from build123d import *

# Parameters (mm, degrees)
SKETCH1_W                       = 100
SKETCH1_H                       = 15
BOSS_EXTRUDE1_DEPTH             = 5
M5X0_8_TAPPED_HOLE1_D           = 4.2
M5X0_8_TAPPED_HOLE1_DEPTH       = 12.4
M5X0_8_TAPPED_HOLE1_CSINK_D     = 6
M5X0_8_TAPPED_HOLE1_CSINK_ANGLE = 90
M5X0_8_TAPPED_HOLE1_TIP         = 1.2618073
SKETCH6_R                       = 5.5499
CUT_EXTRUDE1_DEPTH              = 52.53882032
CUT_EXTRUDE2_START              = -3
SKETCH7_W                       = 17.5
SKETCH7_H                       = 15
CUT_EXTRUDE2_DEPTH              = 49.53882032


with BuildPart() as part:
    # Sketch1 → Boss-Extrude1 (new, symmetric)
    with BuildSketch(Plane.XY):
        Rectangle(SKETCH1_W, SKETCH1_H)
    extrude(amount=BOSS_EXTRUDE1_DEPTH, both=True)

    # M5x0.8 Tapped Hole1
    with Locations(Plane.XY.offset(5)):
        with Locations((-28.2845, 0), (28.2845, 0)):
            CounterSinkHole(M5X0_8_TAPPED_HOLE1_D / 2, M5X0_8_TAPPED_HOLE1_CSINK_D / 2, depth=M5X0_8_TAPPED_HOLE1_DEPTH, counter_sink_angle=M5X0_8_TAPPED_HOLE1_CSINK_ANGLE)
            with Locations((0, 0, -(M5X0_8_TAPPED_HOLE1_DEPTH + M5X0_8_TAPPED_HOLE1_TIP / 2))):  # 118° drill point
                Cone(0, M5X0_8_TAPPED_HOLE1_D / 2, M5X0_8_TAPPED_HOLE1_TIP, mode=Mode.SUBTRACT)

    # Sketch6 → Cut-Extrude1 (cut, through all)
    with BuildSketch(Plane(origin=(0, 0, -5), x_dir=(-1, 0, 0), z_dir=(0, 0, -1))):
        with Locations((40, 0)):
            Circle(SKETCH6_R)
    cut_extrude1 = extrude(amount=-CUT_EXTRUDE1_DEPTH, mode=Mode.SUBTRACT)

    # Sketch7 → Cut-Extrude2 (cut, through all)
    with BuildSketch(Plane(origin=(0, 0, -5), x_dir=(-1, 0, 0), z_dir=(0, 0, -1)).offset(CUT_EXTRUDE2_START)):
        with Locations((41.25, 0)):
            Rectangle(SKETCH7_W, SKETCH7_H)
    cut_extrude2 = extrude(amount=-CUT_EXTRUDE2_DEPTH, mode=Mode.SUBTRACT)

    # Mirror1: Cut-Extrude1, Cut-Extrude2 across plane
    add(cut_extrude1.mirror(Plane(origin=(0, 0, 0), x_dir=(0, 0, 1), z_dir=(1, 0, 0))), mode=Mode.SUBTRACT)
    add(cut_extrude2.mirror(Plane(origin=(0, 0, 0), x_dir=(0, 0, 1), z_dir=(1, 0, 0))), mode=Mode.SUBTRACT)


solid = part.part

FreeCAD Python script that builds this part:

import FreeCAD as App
import Part
import Sketcher

V = App.Vector
Q = App.Units.Quantity

doc = App.newDocument("Part")
body = doc.addObject("PartDesign::Body", "Body")

# Sketch on XY plane
sketch1 = doc.addObject("Sketcher::SketchObject", "Sketch")
body.addObject(sketch1)
sketch1.AttachmentSupport = (doc.XY_Plane, [""])
sketch1.MapMode = "FlatFace"
sketch1.addGeometry([
    Part.LineSegment(V(-50, 8, 0), V(-50, -8, 0)),
    Part.LineSegment(V(-50, -8, 0), V(50, -8, 0)),
    Part.LineSegment(V(50, -8, 0), V(50, 8, 0)),
    Part.LineSegment(V(50, 8, 0), V(-50, 8, 0)),
], False)
sketch1.addConstraint([
    Sketcher.Constraint("Coincident", 0, 2, 1, 1),
    Sketcher.Constraint("Coincident", 1, 2, 2, 1),
    Sketcher.Constraint("Coincident", 2, 2, 3, 1),
    Sketcher.Constraint("Coincident", 3, 2, 0, 1),
    Sketcher.Constraint("Vertical", 0),
    Sketcher.Constraint("Horizontal", 1),
    Sketcher.Constraint("Vertical", 2),
    Sketcher.Constraint("Horizontal", 3),
    Sketcher.Constraint("Symmetric", 0, 2, 2, 2, -1, 1),
    Sketcher.Constraint("DistanceX", 1, 1, 1, 2, Q("100 mm")),
    Sketcher.Constraint("DistanceY", 0, 2, 0, 1, Q("15 mm")),
])
pad1 = doc.addObject("PartDesign::Pad", "Pad")
body.addObject(pad1)
pad1.Profile = sketch1
pad1.Length = 10
pad1.Midplane = True

# Sketch on XY plane
sketch2 = doc.addObject("Sketcher::SketchObject", "Sketch001")
body.addObject(sketch2)
sketch2.AttachmentSupport = (doc.XY_Plane, [""])
sketch2.MapMode = "FlatFace"
sketch2.AttachmentOffset = App.Placement(V(0, 0, 5), App.Rotation())
sketch2.addGeometry([
    Part.Circle(V(-28.3, 0, 0), V(0, 0, 1), 2.1),
    Part.Circle(V(28.3, 0, 0), V(0, 0, 1), 2.1),
], False)
sketch2.addConstraint([
    Sketcher.Constraint("Equal", 0, 1),
    Sketcher.Constraint("Symmetric", 0, 3, 1, 3, -1, 1),
    Sketcher.Constraint("PointOnObject", 0, 3, -1),
    Sketcher.Constraint("Diameter", 0, Q("4.2 mm")),
    Sketcher.Constraint("DistanceX", 0, 3, 1, 3, Q("56.569 mm")),
])
doc.recompute()
hole = doc.addObject("PartDesign::Hole", "Hole")
body.addObject(hole)
hole.Profile = sketch2
hole.ThreadType = "None"
hole.Diameter = 4.2
hole.DepthType = "Dimension"
hole.Depth = 12.4
hole.DrillPoint = "Angled"
hole.DrillPointAngle = 118
hole.HoleCutType = "Countersink"
hole.HoleCutDiameter = 6
hole.HoleCutCountersinkAngle = 90

# Sketch on XY plane
sketch3 = doc.addObject("Sketcher::SketchObject", "Sketch002")
body.addObject(sketch3)
sketch3.AttachmentSupport = (doc.XY_Plane, [""])
sketch3.MapMode = "FlatFace"
sketch3.AttachmentOffset = App.Placement(V(0, 0, -5), App.Rotation())
sketch3.addGeometry(Part.Circle(V(-40, 0, 0), V(0, 0, 1), 6), False)
sketch3.addConstraint([
    Sketcher.Constraint("PointOnObject", 0, 3, -1),
    Sketcher.Constraint("DistanceX", 0, 3, -1, 1, Q("40 mm")),
    Sketcher.Constraint("Diameter", 0, Q("11.0998 mm")),
])
pocket1 = doc.addObject("PartDesign::Pocket", "Pocket")
body.addObject(pocket1)
pocket1.Profile = sketch3
pocket1.Type = "ThroughAll"
pocket1.Reversed = True

# Sketch on XY plane
sketch4 = doc.addObject("Sketcher::SketchObject", "Sketch003")
body.addObject(sketch4)
sketch4.AttachmentSupport = (doc.XY_Plane, [""])
sketch4.MapMode = "FlatFace"
sketch4.AttachmentOffset = App.Placement(V(0, 0, -2), App.Rotation())
sketch4.addGeometry([
    Part.LineSegment(V(-32, 8, 0), V(-32, -8, 0)),
    Part.LineSegment(V(-32, -8, 0), V(-50, -8, 0)),
    Part.LineSegment(V(-50, -8, 0), V(-50, 8, 0)),
    Part.LineSegment(V(-50, 8, 0), V(-32, 8, 0)),
], False)
sketch4.addConstraint([
    Sketcher.Constraint("Coincident", 0, 2, 1, 1),
    Sketcher.Constraint("Coincident", 1, 2, 2, 1),
    Sketcher.Constraint("Coincident", 2, 2, 3, 1),
    Sketcher.Constraint("Coincident", 3, 2, 0, 1),
    Sketcher.Constraint("Vertical", 0),
    Sketcher.Constraint("Horizontal", 1),
    Sketcher.Constraint("Vertical", 2),
    Sketcher.Constraint("Horizontal", 3),
    Sketcher.Constraint("DistanceY", 0, 2, 0, 1, Q("15 mm")),
    Sketcher.Constraint("DistanceX", 1, 2, 1, 1, Q("17.5 mm")),
    Sketcher.Constraint("DistanceX", 1, 2, -1, 1, Q("50 mm")),
    Sketcher.Constraint("DistanceY", 0, 2, -1, 1, Q("7.5 mm")),
])
pocket2 = doc.addObject("PartDesign::Pocket", "Pocket001")
body.addObject(pocket2)
pocket2.Profile = sketch4
pocket2.Type = "ThroughAll"
pocket2.Reversed = True
doc.recompute()

mirrored = doc.addObject("PartDesign::Mirrored", "Mirrored")
body.addObject(mirrored)
mirrored.Originals = [pocket1, pocket2]
mirrored.MirrorPlane = (doc.YZ_Plane, [""])
body.Tip = mirrored

doc.recompute()
